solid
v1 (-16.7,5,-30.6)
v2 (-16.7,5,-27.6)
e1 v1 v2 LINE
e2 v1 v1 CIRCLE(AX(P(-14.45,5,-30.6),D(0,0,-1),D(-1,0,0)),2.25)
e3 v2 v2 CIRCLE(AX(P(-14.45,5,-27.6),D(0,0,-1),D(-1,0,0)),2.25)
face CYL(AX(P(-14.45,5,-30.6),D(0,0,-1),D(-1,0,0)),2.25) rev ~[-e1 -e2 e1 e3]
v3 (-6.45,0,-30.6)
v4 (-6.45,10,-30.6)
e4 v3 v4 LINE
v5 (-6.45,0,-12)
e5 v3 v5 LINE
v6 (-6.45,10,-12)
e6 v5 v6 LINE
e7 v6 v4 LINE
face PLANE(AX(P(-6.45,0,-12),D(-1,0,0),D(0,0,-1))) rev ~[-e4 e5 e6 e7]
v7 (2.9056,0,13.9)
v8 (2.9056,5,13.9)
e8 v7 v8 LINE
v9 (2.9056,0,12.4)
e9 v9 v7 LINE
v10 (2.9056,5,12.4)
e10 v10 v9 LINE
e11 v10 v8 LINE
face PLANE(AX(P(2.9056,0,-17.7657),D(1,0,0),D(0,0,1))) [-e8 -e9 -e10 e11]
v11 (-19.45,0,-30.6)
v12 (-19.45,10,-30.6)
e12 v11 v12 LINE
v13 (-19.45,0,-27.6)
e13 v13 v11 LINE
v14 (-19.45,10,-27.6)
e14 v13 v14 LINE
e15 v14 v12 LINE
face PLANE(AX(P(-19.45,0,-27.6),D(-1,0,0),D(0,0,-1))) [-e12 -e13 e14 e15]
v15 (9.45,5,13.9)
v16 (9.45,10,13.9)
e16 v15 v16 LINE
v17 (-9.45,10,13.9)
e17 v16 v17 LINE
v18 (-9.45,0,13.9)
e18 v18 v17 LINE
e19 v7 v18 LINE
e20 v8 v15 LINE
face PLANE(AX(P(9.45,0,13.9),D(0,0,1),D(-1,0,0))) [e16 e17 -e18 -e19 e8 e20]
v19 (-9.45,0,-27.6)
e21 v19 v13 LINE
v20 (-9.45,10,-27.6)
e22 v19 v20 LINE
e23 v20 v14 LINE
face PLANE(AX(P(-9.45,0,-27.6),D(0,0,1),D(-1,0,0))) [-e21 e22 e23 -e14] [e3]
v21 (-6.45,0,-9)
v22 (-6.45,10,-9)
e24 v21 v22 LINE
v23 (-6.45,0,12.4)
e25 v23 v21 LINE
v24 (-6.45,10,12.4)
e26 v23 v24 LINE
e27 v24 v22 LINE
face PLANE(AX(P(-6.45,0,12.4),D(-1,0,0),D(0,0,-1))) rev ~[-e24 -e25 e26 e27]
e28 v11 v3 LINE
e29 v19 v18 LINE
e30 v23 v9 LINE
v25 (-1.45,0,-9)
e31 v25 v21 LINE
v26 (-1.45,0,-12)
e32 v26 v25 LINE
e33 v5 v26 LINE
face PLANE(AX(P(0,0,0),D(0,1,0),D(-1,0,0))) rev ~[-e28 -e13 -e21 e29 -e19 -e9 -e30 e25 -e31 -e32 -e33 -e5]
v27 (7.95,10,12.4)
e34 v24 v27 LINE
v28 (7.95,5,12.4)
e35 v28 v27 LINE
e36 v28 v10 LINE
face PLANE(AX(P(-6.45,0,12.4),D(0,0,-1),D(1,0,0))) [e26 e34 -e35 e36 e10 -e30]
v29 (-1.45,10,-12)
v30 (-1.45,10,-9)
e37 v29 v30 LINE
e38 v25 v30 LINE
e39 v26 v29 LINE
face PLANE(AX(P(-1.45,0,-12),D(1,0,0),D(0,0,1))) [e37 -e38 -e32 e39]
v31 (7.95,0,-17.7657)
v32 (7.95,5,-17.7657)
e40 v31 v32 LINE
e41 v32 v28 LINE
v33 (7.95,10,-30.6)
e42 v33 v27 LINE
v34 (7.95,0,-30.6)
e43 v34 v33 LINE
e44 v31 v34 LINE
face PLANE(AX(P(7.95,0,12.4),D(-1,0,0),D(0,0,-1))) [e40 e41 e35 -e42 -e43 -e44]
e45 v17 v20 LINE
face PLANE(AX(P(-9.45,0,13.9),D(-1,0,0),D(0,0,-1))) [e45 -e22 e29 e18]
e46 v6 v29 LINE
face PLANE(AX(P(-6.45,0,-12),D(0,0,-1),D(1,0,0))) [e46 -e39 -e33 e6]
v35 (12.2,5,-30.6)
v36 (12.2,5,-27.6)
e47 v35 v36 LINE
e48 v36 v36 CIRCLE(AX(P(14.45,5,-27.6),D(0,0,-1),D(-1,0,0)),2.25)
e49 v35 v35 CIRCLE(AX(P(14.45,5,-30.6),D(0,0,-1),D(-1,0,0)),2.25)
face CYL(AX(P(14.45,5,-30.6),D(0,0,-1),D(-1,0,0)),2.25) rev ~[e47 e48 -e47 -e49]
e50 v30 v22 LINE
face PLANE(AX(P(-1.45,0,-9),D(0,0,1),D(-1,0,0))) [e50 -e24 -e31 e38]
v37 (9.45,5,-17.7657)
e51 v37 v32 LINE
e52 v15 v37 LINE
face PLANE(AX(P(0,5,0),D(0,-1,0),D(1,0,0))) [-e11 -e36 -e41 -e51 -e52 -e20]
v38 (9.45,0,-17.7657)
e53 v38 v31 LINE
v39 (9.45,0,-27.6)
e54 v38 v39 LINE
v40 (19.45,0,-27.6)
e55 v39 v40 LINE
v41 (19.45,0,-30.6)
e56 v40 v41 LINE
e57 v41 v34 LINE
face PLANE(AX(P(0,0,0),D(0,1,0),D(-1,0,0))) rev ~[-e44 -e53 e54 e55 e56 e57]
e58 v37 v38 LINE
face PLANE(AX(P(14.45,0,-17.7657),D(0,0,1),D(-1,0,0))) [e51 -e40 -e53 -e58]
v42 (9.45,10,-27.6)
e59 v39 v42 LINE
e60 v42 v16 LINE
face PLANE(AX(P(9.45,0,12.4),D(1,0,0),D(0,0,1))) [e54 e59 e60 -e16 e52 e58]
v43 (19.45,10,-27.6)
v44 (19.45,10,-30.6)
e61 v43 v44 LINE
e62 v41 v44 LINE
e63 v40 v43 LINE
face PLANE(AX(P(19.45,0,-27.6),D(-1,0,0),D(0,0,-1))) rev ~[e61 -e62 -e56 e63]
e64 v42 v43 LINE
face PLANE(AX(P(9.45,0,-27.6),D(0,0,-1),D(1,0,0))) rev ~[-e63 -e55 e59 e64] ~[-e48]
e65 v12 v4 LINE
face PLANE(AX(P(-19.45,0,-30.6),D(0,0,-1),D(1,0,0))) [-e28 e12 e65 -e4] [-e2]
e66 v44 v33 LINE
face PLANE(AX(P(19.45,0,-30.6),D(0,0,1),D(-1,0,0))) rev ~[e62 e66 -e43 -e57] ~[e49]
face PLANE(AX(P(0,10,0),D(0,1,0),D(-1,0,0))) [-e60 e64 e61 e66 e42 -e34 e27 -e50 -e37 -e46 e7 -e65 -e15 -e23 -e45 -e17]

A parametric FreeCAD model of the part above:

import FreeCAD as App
import Part
import Sketcher

doc = App.newDocument("Part")
body = doc.addObject("PartDesign::Body", "Body")

sketch1 = body.newObject("Sketcher::SketchObject", "Sketch")
sketch1.AttachmentSupport = (doc.getObject("XZ_Plane"), [""])
sketch1.MapMode = "FlatFace"
sketch1.addGeometry([
    Part.LineSegment(App.Vector(-9.45, 13.9, 0), App.Vector(9.45, 13.9, 0)),
    Part.LineSegment(App.Vector(9.45, 13.9, 0), App.Vector(9.45, -27.6, 0)),
    Part.LineSegment(App.Vector(9.45, -27.6, 0), App.Vector(19.45, -27.6, 0)),
    Part.LineSegment(App.Vector(19.45, -27.6, 0), App.Vector(19.45, -30.6, 0)),
    Part.LineSegment(App.Vector(19.45, -30.6, 0), App.Vector(7.95, -30.6, 0)),
    Part.LineSegment(App.Vector(7.95, -30.6, 0), App.Vector(7.95, 12.4, 0)),
    Part.LineSegment(App.Vector(7.95, 12.4, 0), App.Vector(-6.45, 12.4, 0)),
    Part.LineSegment(App.Vector(-6.45, 12.4, 0), App.Vector(-6.45, -9, 0)),
    Part.LineSegment(App.Vector(-6.45, -9, 0), App.Vector(-1.45, -9, 0)),
    Part.LineSegment(App.Vector(-1.45, -9, 0), App.Vector(-1.45, -12, 0)),
    Part.LineSegment(App.Vector(-1.45, -12, 0), App.Vector(-6.45, -12, 0)),
    Part.LineSegment(App.Vector(-6.45, -12, 0), App.Vector(-6.45, -30.6, 0)),
    Part.LineSegment(App.Vector(-6.45, -30.6, 0), App.Vector(-19.45, -30.6, 0)),
    Part.LineSegment(App.Vector(-19.45, -30.6, 0), App.Vector(-19.45, -27.6, 0)),
    Part.LineSegment(App.Vector(-19.45, -27.6, 0), App.Vector(-9.45, -27.6, 0)),
    Part.LineSegment(App.Vector(-9.45, -27.6, 0), App.Vector(-9.45, 13.9, 0)),
], False)
sketch1.addConstraint([
    Sketcher.Constraint("Coincident", 0, 2, 1, 1),
    Sketcher.Constraint("Coincident", 1, 2, 2, 1),
    Sketcher.Constraint("Coincident", 2, 2, 3, 1),
    Sketcher.Constraint("Coincident", 3, 2, 4, 1),
    Sketcher.Constraint("Coincident", 4, 2, 5, 1),
    Sketcher.Constraint("Coincident", 5, 2, 6, 1),
    Sketcher.Constraint("Coincident", 6, 2, 7, 1),
    Sketcher.Constraint("Coincident", 7, 2, 8, 1),
    Sketcher.Constraint("Coincident", 8, 2, 9, 1),
    Sketcher.Constraint("Coincident", 9, 2, 10, 1),
    Sketcher.Constraint("Coincident", 10, 2, 11, 1),
    Sketcher.Constraint("Coincident", 11, 2, 12, 1),
    Sketcher.Constraint("Coincident", 12, 2, 13, 1),
    Sketcher.Constraint("Coincident", 13, 2, 14, 1),
    Sketcher.Constraint("Coincident", 14, 2, 15, 1),
    Sketcher.Constraint("Coincident", 15, 2, 0, 1),
    Sketcher.Constraint("Horizontal", 0),
    Sketcher.Constraint("Vertical", 1),
    Sketcher.Constraint("Horizontal", 2),
    Sketcher.Constraint("Vertical", 3),
    Sketcher.Constraint("Horizontal", 4),
    Sketcher.Constraint("Vertical", 5),
    Sketcher.Constraint("Horizontal", 6),
    Sketcher.Constraint("Vertical", 7),
    Sketcher.Constraint("Horizontal", 8),
    Sketcher.Constraint("Vertical", 9),
    Sketcher.Constraint("Horizontal", 10),
    Sketcher.Constraint("Vertical", 11),
    Sketcher.Constraint("Horizontal", 12),
    Sketcher.Constraint("Vertical", 13),
    Sketcher.Constraint("Horizontal", 14),
    Sketcher.Constraint("Vertical", 15),
    Sketcher.Constraint("Symmetric", 3, 2, 12, 2, -2),
    Sketcher.Constraint("Symmetric", 1, 2, 14, 2, -2),
    Sketcher.Constraint("Vertical", 7, 2, 10, 2),
    Sketcher.Constraint("Equal", 3, 9),
    Sketcher.Constraint("DistanceX", 2, 1, 2, 2, 10.0),
    Sketcher.Constraint("DistanceX", 8, 1, 8, 2, 5.0),
    Sketcher.Constraint("DistanceY", 3, 2, 3, 1, 3.0),
    Sketcher.Constraint("DistanceX", 6, 2, 6, 1, 14.4),
    Sketcher.Constraint("DistanceY", 7, 2, 7, 1, 21.4),
    Sketcher.Constraint("DistanceX", 14, 2, 11, 2, 3.0),
    Sketcher.Constraint("DistanceX", 4, 2, 1, 2, 1.5),
    Sketcher.Constraint("DistanceY", 5, 2, 0, 2, 1.5),
    Sketcher.Constraint("DistanceY", 5, 1, 5, 2, 43.0),
    Sketcher.Constraint("DistanceY", 7, 2, -1, 1, 9.0),
])
pad1 = body.newObject("PartDesign::Pad", "Pad")
pad1.Profile = sketch1
pad1.Length = 10
pad1.Reversed = True

sketch2 = body.newObject("Sketcher::SketchObject", "Sketch001")
sketch2.AttachmentSupport = (doc.getObject("XY_Plane"), [""])
sketch2.MapMode = "FlatFace"
sketch2.AttachmentOffset = App.Placement(App.Vector(0, 0, -30.6), App.Rotation())
sketch2.addGeometry(Part.Circle(App.Vector(14.45, 5, 0), App.Vector(0, 0, 1), 2.25), False)
sketch2.addConstraint([
    Sketcher.Constraint("Diameter", 0, 4.5),
    Sketcher.Constraint("DistanceY", -1, 1, 0, 3, 5.0),
    Sketcher.Constraint("DistanceX", -1, 1, 0, 3, 14.45),
])
pocket1 = body.newObject("PartDesign::Pocket", "Pocket")
pocket1.Profile = sketch2
pocket1.Length = 4
pocket1.Reversed = True

sketch3 = body.newObject("Sketcher::SketchObject", "Sketch002")
sketch3.AttachmentSupport = (doc.getObject("XY_Plane"), [""])
sketch3.MapMode = "FlatFace"
sketch3.AttachmentOffset = App.Placement(App.Vector(0, 0, -30.6), App.Rotation())
sketch3.addGeometry(Part.Circle(App.Vector(-14.45, 5, 0), App.Vector(0, 0, 1), 2.25), False)
sketch3.addConstraint([
    Sketcher.Constraint("Diameter", 0, 4.5),
    Sketcher.Constraint("DistanceY", -1, 1, 0, 3, 5.0),
    Sketcher.Constraint("DistanceX", 0, 3, -1, 1, 14.45),
])
pocket2 = body.newObject("PartDesign::Pocket", "Pocket001")
pocket2.Profile = sketch3
pocket2.Length = 4
pocket2.Reversed = True

sketch4 = body.newObject("Sketcher::SketchObject", "Sketch003")
sketch4.AttachmentSupport = (doc.getObject("XZ_Plane"), [""])
sketch4.MapMode = "FlatFace"
sketch4.addGeometry([
    Part.LineSegment(App.Vector(14.45, 16.2719, 0), App.Vector(2.9056, 16.2719, 0)),
    Part.LineSegment(App.Vector(2.9056, 16.2719, 0), App.Vector(2.9056, -17.7657, 0)),
    Part.LineSegment(App.Vector(2.9056, -17.7657, 0), App.Vector(14.45, -17.7657, 0)),
    Part.LineSegment(App.Vector(14.45, -17.7657, 0), App.Vector(14.45, 16.2719, 0)),
], False)
sketch4.addConstraint([
    Sketcher.Constraint("Coincident", 0, 2, 1, 1),
    Sketcher.Constraint("Coincident", 1, 2, 2, 1),
    Sketcher.Constraint("Coincident", 2, 2, 3, 1),
    Sketcher.Constraint("Coincident", 3, 2, 0, 1),
    Sketcher.Constraint("Horizontal", 0),
    Sketcher.Constraint("Vertical", 1),
    Sketcher.Constraint("Horizontal", 2),
    Sketcher.Constraint("Vertical", 3),
    Sketcher.Constraint("DistanceX", -1, 1, 2, 2, 14.45),
    Sketcher.Constraint("DistanceX", 0, 2, 0, 1, 11.5444),
    Sketcher.Constraint("DistanceY", 1, 2, 1, 1, 34.0376),
    Sketcher.Constraint("DistanceY", -1, 1, 0, 2, 16.272),
])
pocket3 = body.newObject("PartDesign::Pocket", "Pocket002")
pocket3.Profile = sketch4
pocket3.Length = 5

doc.recompute()
